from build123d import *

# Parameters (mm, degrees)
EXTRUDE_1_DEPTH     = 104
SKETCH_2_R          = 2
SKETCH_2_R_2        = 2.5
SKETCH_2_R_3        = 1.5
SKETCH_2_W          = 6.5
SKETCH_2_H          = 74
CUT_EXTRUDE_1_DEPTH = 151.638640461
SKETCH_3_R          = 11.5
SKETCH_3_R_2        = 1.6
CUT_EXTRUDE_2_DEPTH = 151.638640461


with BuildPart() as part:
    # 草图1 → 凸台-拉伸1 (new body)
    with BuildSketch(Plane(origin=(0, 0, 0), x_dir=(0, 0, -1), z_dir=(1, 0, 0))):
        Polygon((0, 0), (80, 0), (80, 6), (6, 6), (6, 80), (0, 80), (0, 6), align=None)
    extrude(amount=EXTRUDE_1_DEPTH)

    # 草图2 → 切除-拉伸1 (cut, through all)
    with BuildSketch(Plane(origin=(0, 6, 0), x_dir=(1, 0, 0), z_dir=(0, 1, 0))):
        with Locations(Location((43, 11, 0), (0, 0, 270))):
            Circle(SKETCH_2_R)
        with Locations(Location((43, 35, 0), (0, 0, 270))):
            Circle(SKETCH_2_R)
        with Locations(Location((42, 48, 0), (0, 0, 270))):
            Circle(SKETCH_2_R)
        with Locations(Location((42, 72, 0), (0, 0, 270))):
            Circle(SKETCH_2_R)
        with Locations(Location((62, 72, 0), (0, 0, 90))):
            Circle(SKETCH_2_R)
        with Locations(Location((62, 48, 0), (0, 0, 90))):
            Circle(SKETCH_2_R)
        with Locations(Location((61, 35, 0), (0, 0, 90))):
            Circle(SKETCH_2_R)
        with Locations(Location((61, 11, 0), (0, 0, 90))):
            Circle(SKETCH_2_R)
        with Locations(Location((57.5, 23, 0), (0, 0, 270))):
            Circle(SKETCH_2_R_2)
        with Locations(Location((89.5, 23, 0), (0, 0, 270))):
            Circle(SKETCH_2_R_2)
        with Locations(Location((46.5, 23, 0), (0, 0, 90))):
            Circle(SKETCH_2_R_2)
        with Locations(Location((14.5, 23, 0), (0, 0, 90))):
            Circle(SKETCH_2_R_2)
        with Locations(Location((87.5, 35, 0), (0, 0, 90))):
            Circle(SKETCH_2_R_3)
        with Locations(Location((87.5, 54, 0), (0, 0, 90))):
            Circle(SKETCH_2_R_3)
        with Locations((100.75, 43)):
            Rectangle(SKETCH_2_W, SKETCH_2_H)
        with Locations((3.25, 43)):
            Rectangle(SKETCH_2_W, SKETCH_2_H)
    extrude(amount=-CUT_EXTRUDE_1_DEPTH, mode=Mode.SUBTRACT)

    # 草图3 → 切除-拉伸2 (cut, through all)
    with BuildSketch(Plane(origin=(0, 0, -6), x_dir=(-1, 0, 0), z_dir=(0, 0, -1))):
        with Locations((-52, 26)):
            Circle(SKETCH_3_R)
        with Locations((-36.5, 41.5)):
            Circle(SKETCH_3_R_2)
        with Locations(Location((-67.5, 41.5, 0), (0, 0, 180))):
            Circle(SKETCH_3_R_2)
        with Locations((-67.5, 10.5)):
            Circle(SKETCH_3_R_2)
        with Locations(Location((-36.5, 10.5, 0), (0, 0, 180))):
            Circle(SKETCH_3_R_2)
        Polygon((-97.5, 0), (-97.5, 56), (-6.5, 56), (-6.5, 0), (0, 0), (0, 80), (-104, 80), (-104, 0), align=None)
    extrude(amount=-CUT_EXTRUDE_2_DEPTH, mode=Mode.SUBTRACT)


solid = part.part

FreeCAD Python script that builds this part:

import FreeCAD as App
import Part
import Sketcher
from FreeCAD import Vector
Q = App.Units.Quantity


def add_polygon(sketch, points):
    """Adds a closed chain of lines whose ends are joined by coincident constraints."""
    first, n = sketch.GeometryCount, len(points)
    for a, b in zip(points, points[1:] + points[:1]):
        sketch.addGeometry(Part.LineSegment(App.Vector(*a, 0), App.Vector(*b, 0)), False)
    for i in range(n):
        sketch.addConstraint(Sketcher.Constraint("Coincident", first + i, 2, first + (i + 1) % n, 1))

doc = App.newDocument("Part")
body = doc.addObject("PartDesign::Body", "Body")

sketch1 = doc.addObject("Sketcher::SketchObject", "Sketch")
body.addObject(sketch1)
sketch1.AttachmentSupport = (doc.YZ_Plane, [""])
sketch1.MapMode = "FlatFace"
add_polygon(sketch1, [(0, 0), (0, -80), (6, -80), (6, -6), (80, -6), (80, 0)])
sketch1.addConstraint(Sketcher.Constraint("Vertical", 0))
sketch1.addConstraint(Sketcher.Constraint("Horizontal", 1))
sketch1.addConstraint(Sketcher.Constraint("Vertical", 2))
sketch1.addConstraint(Sketcher.Constraint("Horizontal", 3))
sketch1.addConstraint(Sketcher.Constraint("Vertical", 4))
sketch1.addConstraint(Sketcher.Constraint("Horizontal", 5))
sketch1.addConstraint(Sketcher.Constraint("Coincident", 5, 2, -1, 1))
sketch1.addConstraint(Sketcher.Constraint("Equal", 5, 0))
sketch1.addConstraint(Sketcher.Constraint("Equal", 3, 2))
sketch1.addConstraint(Sketcher.Constraint("DistanceX", 1, 1, 1, 2, Q("6 mm")))
sketch1.addConstraint(Sketcher.Constraint("DistanceX", 3, 1, 3, 2, Q("74 mm")))
pad1 = doc.addObject("PartDesign::Pad", "Pad")
body.addObject(pad1)
pad1.Profile = sketch1
pad1.Length = 104

sketch2 = doc.addObject("Sketcher::SketchObject", "Sketch001")
body.addObject(sketch2)
sketch2.AttachmentSupport = (doc.XZ_Plane, [""])
sketch2.MapMode = "FlatFace"
sketch2.AttachmentOffset = App.Placement(Vector(0, 0, -6), App.Rotation())
sketch2.addGeometry(Part.Circle(Vector(43, -11, 0), Vector(0, 0, 1), 2), False)
sketch2.addGeometry(Part.Circle(Vector(43, -35, 0), Vector(0, 0, 1), 2), False)
sketch2.addGeometry(Part.Circle(Vector(42, -48, 0), Vector(0, 0, 1), 2), False)
sketch2.addGeometry(Part.Circle(Vector(42, -72, 0), Vector(0, 0, 1), 2), False)
sketch2.addGeometry(Part.Circle(Vector(62, -72, 0), Vector(0, 0, 1), 2), False)
sketch2.addGeometry(Part.Circle(Vector(62, -48, 0), Vector(0, 0, 1), 2), False)
sketch2.addGeometry(Part.Circle(Vector(61, -35, 0), Vector(0, 0, 1), 2), False)
sketch2.addGeometry(Part.Circle(Vector(61, -11, 0), Vector(0, 0, 1), 2), False)
sketch2.addGeometry(Part.Circle(Vector(57.5, -23, 0), Vector(0, 0, 1), 2.5), False)
sketch2.addGeometry(Part.Circle(Vector(89.5, -23, 0), Vector(0, 0, 1), 2.5), False)
sketch2.addGeometry(Part.Circle(Vector(46.5, -23, 0), Vector(0, 0, 1), 2.5), False)
sketch2.addGeometry(Part.Circle(Vector(14.5, -23, 0), Vector(0, 0, 1), 2.5), False)
sketch2.addGeometry(Part.Circle(Vector(87.5, -35, 0), Vector(0, 0, 1), 1.5), False)
sketch2.addGeometry(Part.Circle(Vector(87.5, -54, 0), Vector(0, 0, 1), 1.5), False)
add_polygon(sketch2, [(97.5, -80), (97.5, -6), (104, -6), (104, -80)])
add_polygon(sketch2, [(0, -80), (0, -6), (6.5, -6), (6.5, -80)])
sketch2.addConstraint(Sketcher.Constraint("Vertical", 14))
sketch2.addConstraint(Sketcher.Constraint("Horizontal", 15))
sketch2.addConstraint(Sketcher.Constraint("Vertical", 16))
sketch2.addConstraint(Sketcher.Constraint("Horizontal", 17))
sketch2.addConstraint(Sketcher.Constraint("Vertical", 18))
sketch2.addConstraint(Sketcher.Constraint("Horizontal", 19))
sketch2.addConstraint(Sketcher.Constraint("Vertical", 20))
sketch2.addConstraint(Sketcher.Constraint("Horizontal", 21))
sketch2.addConstraint(Sketcher.Constraint("Equal", 0, 1))
sketch2.addConstraint(Sketcher.Constraint("Equal", 1, 2))
sketch2.addConstraint(Sketcher.Constraint("Equal", 2, 3))
sketch2.addConstraint(Sketcher.Constraint("Equal", 3, 4))
sketch2.addConstraint(Sketcher.Constraint("Equal", 4, 5))
sketch2.addConstraint(Sketcher.Constraint("Equal", 5, 6))
sketch2.addConstraint(Sketcher.Constraint("Equal", 6, 7))
sketch2.addConstraint(Sketcher.Constraint("Equal", 8, 9))
sketch2.addConstraint(Sketcher.Constraint("Equal", 9, 10))
sketch2.addConstraint(Sketcher.Constraint("Equal", 10, 11))
sketch2.addConstraint(Sketcher.Constraint("Equal", 12, 13))
sketch2.addConstraint(Sketcher.Constraint("PointOnObject", 18, 2, -2))
sketch2.addConstraint(Sketcher.Constraint("Horizontal", 3, 3, 4, 3))
sketch2.addConstraint(Sketcher.Constraint("Horizontal", 2, 3, 5, 3))
sketch2.addConstraint(Sketcher.Constraint("Horizontal", 1, 3, 6, 3))
sketch2.addConstraint(Sketcher.Constraint("Horizontal", 0, 3, 7, 3))
sketch2.addConstraint(Sketcher.Constraint("Horizontal", 8, 3, 9, 3))
sketch2.addConstraint(Sketcher.Constraint("Horizontal", 9, 3, 10, 3))
sketch2.addConstraint(Sketcher.Constraint("Horizontal", 10, 3, 11, 3))
sketch2.addConstraint(Sketcher.Constraint("Horizontal", 6, 3, 12, 3))
sketch2.addConstraint(Sketcher.Constraint("Horizontal", 15, 2, 18, 2))
sketch2.addConstraint(Sketcher.Constraint("Horizontal", 17, 2, 20, 2))
sketch2.addConstraint(Sketcher.Constraint("Vertical", 0, 3, 1, 3))
sketch2.addConstraint(Sketcher.Constraint("Vertical", 2, 3, 3, 3))
sketch2.addConstraint(Sketcher.Constraint("Vertical", 4, 3, 5, 3))
sketch2.addConstraint(Sketcher.Constraint("Vertical", 6, 3, 7, 3))
sketch2.addConstraint(Sketcher.Constraint("Vertical", 12, 3, 13, 3))
sketch2.addConstraint(Sketcher.Constraint("Equal", 17, 19))
sketch2.addConstraint(Sketcher.Constraint("Diameter", 0, Q("4 mm")))
sketch2.addConstraint(Sketcher.Constraint("Diameter", 8, Q("5 mm")))
sketch2.addConstraint(Sketcher.Constraint("Diameter", 12, Q("3 mm")))
sketch2.addConstraint(Sketcher.Constraint("DistanceY", 14, 1, 14, 2, Q("74 mm")))
sketch2.addConstraint(Sketcher.Constraint("DistanceX", 15, 1, 15, 2, Q("6.5 mm")))
sketch2.addConstraint(Sketcher.Constraint("DistanceX", -1, 1, 0, 3, Q("43 mm")))
sketch2.addConstraint(Sketcher.Constraint("DistanceY", 0, 3, -1, 1, Q("11 mm")))
sketch2.addConstraint(Sketcher.Constraint("DistanceY", 1, 3, -1, 1, Q("35 mm")))
sketch2.addConstraint(Sketcher.Constraint("DistanceX", -1, 1, 2, 3, Q("42 mm")))
sketch2.addConstraint(Sketcher.Constraint("DistanceY", 2, 3, -1, 1, Q("48 mm")))
sketch2.addConstraint(Sketcher.Constraint("DistanceY", 3, 3, -1, 1, Q("72 mm")))
sketch2.addConstraint(Sketcher.Constraint("DistanceX", -1, 1, 4, 3, Q("62 mm")))
sketch2.addConstraint(Sketcher.Constraint("DistanceX", -1, 1, 6, 3, Q("61 mm")))
sketch2.addConstraint(Sketcher.Constraint("DistanceY", 8, 3, -1, 1, Q("23 mm")))
sketch2.addConstraint(Sketcher.Constraint("DistanceY", 13, 3, -1, 1, Q("54 mm")))
sketch2.addConstraint(Sketcher.Constraint("DistanceY", 14, 2, -1, 1, Q("6 mm")))
sketch2.addConstraint(Sketcher.Constraint("DistanceX", -1, 1, 15, 2, Q("104 mm")))
sketch2.addConstraint(Sketcher.Constraint("DistanceX", 8, 3, 9, 3, Q("32 mm")))
sketch2.addConstraint(Sketcher.Constraint("DistanceX", 10, 3, 8, 3, Q("11 mm")))
sketch2.addConstraint(Sketcher.Constraint("DistanceX", 11, 3, 10, 3, Q("32 mm")))
sketch2.addConstraint(Sketcher.Constraint("DistanceX", 12, 3, 9, 3, Q("2 mm")))
sketch2.addConstraint(Sketcher.Constraint("DistanceX", 9, 3, 14, 2, Q("8 mm")))
pocket1 = doc.addObject("PartDesign::Pocket", "Pocket")
body.addObject(pocket1)
pocket1.Profile = sketch2
pocket1.Type = "ThroughAll"
pocket1.Reversed = True

sketch3 = doc.addObject("Sketcher::SketchObject", "Sketch002")
body.addObject(sketch3)
sketch3.AttachmentSupport = (doc.XY_Plane, [""])
sketch3.MapMode = "FlatFace"
sketch3.AttachmentOffset = App.Placement(Vector(0, 0, -6), App.Rotation())
sketch3.addGeometry(Part.Circle(Vector(52, 26, 0), Vector(0, 0, 1), 11.5), False)
sketch3.addGeometry(Part.Circle(Vector(36.5, 41.5, 0), Vector(0, 0, 1), 1.6), False)
sketch3.addGeometry(Part.Circle(Vector(67.5, 41.5, 0), Vector(0, 0, 1), 1.6), False)
sketch3.addGeometry(Part.Circle(Vector(67.5, 10.5, 0), Vector(0, 0, 1), 1.6), False)
sketch3.addGeometry(Part.Circle(Vector(36.5, 10.5, 0), Vector(0, 0, 1), 1.6), False)
add_polygon(sketch3, [(97.5, 0), (97.5, 56), (6.5, 56), (6.5, 0), (0, 0), (0, 80), (104, 80), (104, 0)])
sketch3.addConstraint(Sketcher.Constraint("Vertical", 5))
sketch3.addConstraint(Sketcher.Constraint("Horizontal", 6))
sketch3.addConstraint(Sketcher.Constraint("Vertical", 7))
sketch3.addConstraint(Sketcher.Constraint("Horizontal", 8))
sketch3.addConstraint(Sketcher.Constraint("Vertical", 9))
sketch3.addConstraint(Sketcher.Constraint("Horizontal", 10))
sketch3.addConstraint(Sketcher.Constraint("Vertical", 11))
sketch3.addConstraint(Sketcher.Constraint("Horizontal", 12))
sketch3.addConstraint(Sketcher.Constraint("Coincident", 8, 2, -1, 1))
sketch3.addConstraint(Sketcher.Constraint("Equal", 1, 2))
sketch3.addConstraint(Sketcher.Constraint("Equal", 2, 3))
sketch3.addConstraint(Sketcher.Constraint("Equal", 3, 4))
sketch3.addConstraint(Sketcher.Constraint("PointOnObject", 11, 2, -1))
sketch3.addConstraint(Sketcher.Constraint("Horizontal", 1, 3, 2, 3))
sketch3.addConstraint(Sketcher.Constraint("Horizontal", 3, 3, 4, 3))
sketch3.addConstraint(Sketcher.Constraint("Vertical", 2, 3, 3, 3))
sketch3.addConstraint(Sketcher.Constraint("Vertical", 1, 3, 4, 3))
sketch3.addConstraint(Sketcher.Constraint("Equal", 8, 12))
sketch3.addConstraint(Sketcher.Constraint("Diameter", 0, Q("23 mm")))
sketch3.addConstraint(Sketcher.Constraint("Diameter", 1, Q("3.2 mm")))
sketch3.addConstraint(Sketcher.Constraint("DistanceX", 6, 2, 6, 1, Q("91 mm")))
sketch3.addConstraint(Sketcher.Constraint("DistanceX", 10, 1, 10, 2, Q("104 mm")))
sketch3.addConstraint(Sketcher.Constraint("DistanceY", 5, 1, 5, 2, Q("56 mm")))
sketch3.addConstraint(Sketcher.Constraint("DistanceY", 9, 1, 9, 2, Q("80 mm")))
sketch3.addConstraint(Sketcher.Constraint("DistanceX", -1, 1, 0, 3, Q("52 mm")))
sketch3.addConstraint(Sketcher.Constraint("DistanceY", -1, 1, 0, 3, Q("26 mm")))
sketch3.addConstraint(Sketcher.Constraint("DistanceX", 1, 3, 2, 3, Q("31 mm")))
sketch3.addConstraint(Sketcher.Constraint("DistanceY", 3, 3, 2, 3, Q("31 mm")))
sketch3.addConstraint(Sketcher.Constraint("DistanceX", 2, 3, 5, 2, Q("30 mm")))
sketch3.addConstraint(Sketcher.Constraint("DistanceY", -1, 1, 1, 3, Q("41.5 mm")))
pocket2 = doc.addObject("PartDesign::Pocket", "Pocket001")
body.addObject(pocket2)
pocket2.Profile = sketch3
pocket2.Type = "ThroughAll"
pocket2.Reversed = True

doc.recompute()
